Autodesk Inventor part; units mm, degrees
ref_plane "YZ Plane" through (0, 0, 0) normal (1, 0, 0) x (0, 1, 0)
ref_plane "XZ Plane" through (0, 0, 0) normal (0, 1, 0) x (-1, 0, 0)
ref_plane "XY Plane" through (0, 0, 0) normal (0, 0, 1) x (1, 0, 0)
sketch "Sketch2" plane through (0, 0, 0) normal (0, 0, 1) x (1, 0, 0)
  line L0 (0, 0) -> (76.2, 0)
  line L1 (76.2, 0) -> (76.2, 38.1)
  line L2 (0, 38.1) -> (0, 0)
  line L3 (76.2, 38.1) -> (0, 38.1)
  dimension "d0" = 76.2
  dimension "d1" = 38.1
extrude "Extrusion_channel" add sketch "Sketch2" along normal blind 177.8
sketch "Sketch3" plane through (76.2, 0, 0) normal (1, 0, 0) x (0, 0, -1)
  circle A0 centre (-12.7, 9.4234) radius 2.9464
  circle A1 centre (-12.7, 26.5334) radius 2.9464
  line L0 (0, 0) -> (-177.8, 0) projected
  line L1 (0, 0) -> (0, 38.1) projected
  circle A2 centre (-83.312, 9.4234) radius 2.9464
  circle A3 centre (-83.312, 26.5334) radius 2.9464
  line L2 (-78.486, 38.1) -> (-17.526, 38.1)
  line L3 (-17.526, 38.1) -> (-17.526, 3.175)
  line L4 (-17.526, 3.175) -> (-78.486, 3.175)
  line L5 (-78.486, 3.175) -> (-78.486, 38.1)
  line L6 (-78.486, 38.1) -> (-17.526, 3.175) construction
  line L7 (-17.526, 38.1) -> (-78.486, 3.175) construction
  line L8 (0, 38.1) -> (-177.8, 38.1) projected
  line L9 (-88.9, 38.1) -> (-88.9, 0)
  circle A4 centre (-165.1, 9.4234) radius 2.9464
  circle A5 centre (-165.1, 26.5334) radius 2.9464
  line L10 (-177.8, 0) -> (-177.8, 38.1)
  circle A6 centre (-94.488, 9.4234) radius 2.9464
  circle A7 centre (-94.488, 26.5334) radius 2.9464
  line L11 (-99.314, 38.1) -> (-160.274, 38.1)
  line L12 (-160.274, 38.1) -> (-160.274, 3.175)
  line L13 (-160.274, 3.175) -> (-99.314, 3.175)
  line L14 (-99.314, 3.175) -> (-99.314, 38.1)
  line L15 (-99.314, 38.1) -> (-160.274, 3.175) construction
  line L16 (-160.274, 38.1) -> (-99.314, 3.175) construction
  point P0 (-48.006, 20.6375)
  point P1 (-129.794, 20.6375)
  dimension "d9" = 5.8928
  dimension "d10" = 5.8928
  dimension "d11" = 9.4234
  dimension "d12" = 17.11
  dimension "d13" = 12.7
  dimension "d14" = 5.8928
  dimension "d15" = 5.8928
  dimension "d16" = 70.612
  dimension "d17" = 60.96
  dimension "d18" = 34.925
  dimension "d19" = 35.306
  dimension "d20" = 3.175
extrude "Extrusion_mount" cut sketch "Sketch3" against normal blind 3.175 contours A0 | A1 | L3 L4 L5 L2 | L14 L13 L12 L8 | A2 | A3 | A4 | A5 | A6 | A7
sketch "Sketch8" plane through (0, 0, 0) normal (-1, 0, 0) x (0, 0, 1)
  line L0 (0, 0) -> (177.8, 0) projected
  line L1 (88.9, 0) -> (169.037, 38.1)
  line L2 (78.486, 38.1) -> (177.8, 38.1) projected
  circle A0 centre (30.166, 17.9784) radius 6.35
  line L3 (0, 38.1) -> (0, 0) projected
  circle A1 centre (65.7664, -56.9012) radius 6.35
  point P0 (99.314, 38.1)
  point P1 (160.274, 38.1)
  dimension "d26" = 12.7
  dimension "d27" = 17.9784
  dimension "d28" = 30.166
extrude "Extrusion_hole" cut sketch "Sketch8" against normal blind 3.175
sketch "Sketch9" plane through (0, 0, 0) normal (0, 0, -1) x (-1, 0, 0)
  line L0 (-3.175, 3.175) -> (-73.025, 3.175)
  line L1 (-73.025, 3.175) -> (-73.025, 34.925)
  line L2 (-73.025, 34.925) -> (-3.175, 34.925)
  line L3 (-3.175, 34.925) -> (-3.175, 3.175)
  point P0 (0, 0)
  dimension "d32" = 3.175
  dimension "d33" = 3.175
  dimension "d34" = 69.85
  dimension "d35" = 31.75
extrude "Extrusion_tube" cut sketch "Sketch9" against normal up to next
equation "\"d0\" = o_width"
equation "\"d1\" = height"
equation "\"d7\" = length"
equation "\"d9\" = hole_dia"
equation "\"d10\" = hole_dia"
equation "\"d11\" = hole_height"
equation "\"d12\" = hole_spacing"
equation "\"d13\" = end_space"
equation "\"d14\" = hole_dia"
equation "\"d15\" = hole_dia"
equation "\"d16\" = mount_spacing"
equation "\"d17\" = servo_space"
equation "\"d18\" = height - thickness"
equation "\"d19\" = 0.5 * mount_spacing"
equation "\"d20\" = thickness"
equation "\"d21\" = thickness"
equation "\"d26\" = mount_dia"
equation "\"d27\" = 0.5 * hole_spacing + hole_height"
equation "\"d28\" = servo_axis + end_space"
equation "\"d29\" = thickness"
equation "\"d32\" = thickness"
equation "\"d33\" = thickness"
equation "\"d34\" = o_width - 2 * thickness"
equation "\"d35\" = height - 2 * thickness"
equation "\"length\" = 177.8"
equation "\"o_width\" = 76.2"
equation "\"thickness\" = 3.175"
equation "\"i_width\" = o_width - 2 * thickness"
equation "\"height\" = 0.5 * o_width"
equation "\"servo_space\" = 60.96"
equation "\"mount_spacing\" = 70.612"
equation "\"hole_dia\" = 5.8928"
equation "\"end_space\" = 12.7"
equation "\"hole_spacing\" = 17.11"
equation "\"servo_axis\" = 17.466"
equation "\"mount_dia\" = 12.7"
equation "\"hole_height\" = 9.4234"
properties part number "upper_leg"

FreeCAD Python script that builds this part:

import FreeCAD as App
import Part
import Sketcher
from FreeCAD import Vector
Q = App.Units.Quantity


def add_polygon(sketch, points):
    """Adds a closed chain of lines whose ends are joined by coincident constraints."""
    first, n = sketch.GeometryCount, len(points)
    for a, b in zip(points, points[1:] + points[:1]):
        sketch.addGeometry(Part.LineSegment(App.Vector(*a, 0), App.Vector(*b, 0)), False)
    for i in range(n):
        sketch.addConstraint(Sketcher.Constraint("Coincident", first + i, 2, first + (i + 1) % n, 1))

doc = App.newDocument("Part")
body = doc.addObject("PartDesign::Body", "Body")

sketch1 = doc.addObject("Sketcher::SketchObject", "Sketch")
body.addObject(sketch1)
sketch1.AttachmentSupport = (doc.XY_Plane, [""])
sketch1.MapMode = "FlatFace"
add_polygon(sketch1, [(0, 38), (0, 0), (76, 0), (76, 38)])
sketch1.addConstraint(Sketcher.Constraint("Vertical", 0))
sketch1.addConstraint(Sketcher.Constraint("Horizontal", 1))
sketch1.addConstraint(Sketcher.Constraint("Vertical", 2))
sketch1.addConstraint(Sketcher.Constraint("Horizontal", 3))
sketch1.addConstraint(Sketcher.Constraint("Coincident", 0, 2, -1, 1))
sketch1.addConstraint(Sketcher.Constraint("DistanceX", 1, 1, 1, 2, Q("3 in")))
sketch1.addConstraint(Sketcher.Constraint("DistanceY", 0, 2, 0, 1, Q("1.5 in")))
pad1 = doc.addObject("PartDesign::Pad", "Pad")
body.addObject(pad1)
pad1.Profile = sketch1
pad1.Length = Q("7 in")

sketch2 = doc.addObject("Sketcher::SketchObject", "Sketch001")
body.addObject(sketch2)
sketch2.AttachmentSupport = (doc.YZ_Plane, [""])
sketch2.MapMode = "FlatFace"
sketch2.AttachmentOffset = App.Placement(Vector(0, 0, 3 * 25.4), App.Rotation())
sketch2.addGeometry(Part.Circle(Vector(9.4, 12.7, 0), Vector(0, 0, 1), 2.9), False)
sketch2.addGeometry(Part.Circle(Vector(26.5, 12.7, 0), Vector(0, 0, 1), 2.9), False)
add_polygon(sketch2, [(3.2, 17.5), (38.1, 17.5), (38.1, 78.5), (3.2, 78.5)])
add_polygon(sketch2, [(3.2, 99.3), (38.1, 99.3), (38.1, 160.3), (3.2, 160.3)])
sketch2.addGeometry(Part.Circle(Vector(9.4, 83.3, 0), Vector(0, 0, 1), 2.9), False)
sketch2.addGeometry(Part.Circle(Vector(26.5, 83.3, 0), Vector(0, 0, 1), 2.9), False)
sketch2.addGeometry(Part.Circle(Vector(9.4, 165.1, 0), Vector(0, 0, 1), 2.9), False)
sketch2.addGeometry(Part.Circle(Vector(26.5, 165.1, 0), Vector(0, 0, 1), 2.9), False)
sketch2.addGeometry(Part.Circle(Vector(9.4, 94.5, 0), Vector(0, 0, 1), 2.9), False)
sketch2.addGeometry(Part.Circle(Vector(26.5, 94.5, 0), Vector(0, 0, 1), 2.9), False)
sketch2.addConstraint(Sketcher.Constraint("Horizontal", 2))
sketch2.addConstraint(Sketcher.Constraint("Vertical", 3))
sketch2.addConstraint(Sketcher.Constraint("Horizontal", 4))
sketch2.addConstraint(Sketcher.Constraint("Vertical", 5))
sketch2.addConstraint(Sketcher.Constraint("Horizontal", 6))
sketch2.addConstraint(Sketcher.Constraint("Vertical", 7))
sketch2.addConstraint(Sketcher.Constraint("Horizontal", 8))
sketch2.addConstraint(Sketcher.Constraint("Vertical", 9))
sketch2.addConstraint(Sketcher.Constraint("Equal", 0, 1))
sketch2.addConstraint(Sketcher.Constraint("Equal", 1, 10))
sketch2.addConstraint(Sketcher.Constraint("Equal", 10, 11))
sketch2.addConstraint(Sketcher.Constraint("Equal", 11, 12))
sketch2.addConstraint(Sketcher.Constraint("Equal", 12, 13))
sketch2.addConstraint(Sketcher.Constraint("Equal", 13, 14))
sketch2.addConstraint(Sketcher.Constraint("Equal", 14, 15))
sketch2.addConstraint(Sketcher.Constraint("Horizontal", 0, 3, 1, 3))
sketch2.addConstraint(Sketcher.Constraint("Horizontal", 10, 3, 11, 3))
sketch2.addConstraint(Sketcher.Constraint("Horizontal", 12, 3, 13, 3))
sketch2.addConstraint(Sketcher.Constraint("Horizontal", 14, 3, 15, 3))
sketch2.addConstraint(Sketcher.Constraint("Vertical", 0, 3, 10, 3))
sketch2.addConstraint(Sketcher.Constraint("Vertical", 1, 3, 11, 3))
sketch2.addConstraint(Sketcher.Constraint("Vertical", 10, 3, 12, 3))
sketch2.addConstraint(Sketcher.Constraint("Vertical", 11, 3, 13, 3))
sketch2.addConstraint(Sketcher.Constraint("Vertical", 12, 3, 14, 3))
sketch2.addConstraint(Sketcher.Constraint("Vertical", 13, 3, 15, 3))
sketch2.addConstraint(Sketcher.Constraint("Vertical", 3, 2, 6, 2))
sketch2.addConstraint(Sketcher.Constraint("Vertical", 5, 2, 8, 2))
sketch2.addConstraint(Sketcher.Constraint("Equal", 5, 7))
sketch2.addConstraint(Sketcher.Constraint("Diameter", 0, Q("0.232 in")))
sketch2.addConstraint(Sketcher.Constraint("DistanceY", 3, 1, 3, 2, Q("2.4 in")))
sketch2.addConstraint(Sketcher.Constraint("DistanceY", -1, 1, 0, 3, Q("0.5 in")))
sketch2.addConstraint(Sketcher.Constraint("DistanceX", 2, 1, 2, 2, Q("1.375 in")))
sketch2.addConstraint(Sketcher.Constraint("DistanceY", 0, 3, 10, 3, Q("2.78 in")))
sketch2.addConstraint(Sketcher.Constraint("DistanceY", 14, 3, 12, 3, Q("2.78 in")))
sketch2.addConstraint(Sketcher.Constraint("DistanceX", -1, 1, 0, 3, Q("0.371 in")))
sketch2.addConstraint(Sketcher.Constraint("DistanceX", -1, 1, 4, 2, Q("0.125 in")))
sketch2.addConstraint(Sketcher.Constraint("DistanceY", 0, 3, 12, 3, Q("6 in")))
sketch2.addConstraint(Sketcher.Constraint("DistanceY", -1, 1, 2, 2, Q("0.69 in")))
sketch2.addConstraint(Sketcher.Constraint("DistanceY", -1, 1, 6, 2, Q("3.91 in")))
sketch2.addConstraint(Sketcher.Constraint("DistanceX", 0, 3, 1, 3, 17.11))
pocket1 = doc.addObject("PartDesign::Pocket", "Pocket")
body.addObject(pocket1)
pocket1.Profile = sketch2
pocket1.Length = Q("0.125 in")

sketch3 = doc.addObject("Sketcher::SketchObject", "Sketch002")
body.addObject(sketch3)
sketch3.AttachmentSupport = (doc.YZ_Plane, [""])
sketch3.MapMode = "FlatFace"
sketch3.addGeometry(Part.Circle(Vector(18, 30, 0), Vector(0, 0, 1), 6), False)
sketch3.addGeometry(Part.Circle(Vector(-57, 66, 0), Vector(0, 0, 1), 6), False)
sketch3.addConstraint(Sketcher.Constraint("Equal", 0, 1))
sketch3.addConstraint(Sketcher.Constraint("Diameter", 0, Q("0.5 in")))
sketch3.addConstraint(Sketcher.Constraint("DistanceX", -1, 1, 0, 3, Q("0.7078 in")))
sketch3.addConstraint(Sketcher.Constraint("DistanceY", -1, 1, 0, 3, 30.166))
sketch3.addConstraint(Sketcher.Constraint("DistanceX", 1, 3, -1, 1, Q("2.2402 in")))
sketch3.addConstraint(Sketcher.Constraint("DistanceY", 0, 3, 1, 3, Q("1.4016 in")))
pocket2 = doc.addObject("PartDesign::Pocket", "Pocket001")
body.addObject(pocket2)
pocket2.Profile = sketch3
pocket2.Length = Q("0.125 in")
pocket2.Reversed = True

sketch4 = doc.addObject("Sketcher::SketchObject", "Sketch003")
body.addObject(sketch4)
sketch4.AttachmentSupport = (doc.XY_Plane, [""])
sketch4.MapMode = "FlatFace"
add_polygon(sketch4, [(73, 3), (3, 3), (3, 35), (73, 35)])
sketch4.addConstraint(Sketcher.Constraint("Horizontal", 0))
sketch4.addConstraint(Sketcher.Constraint("Vertical", 1))
sketch4.addConstraint(Sketcher.Constraint("Horizontal", 2))
sketch4.addConstraint(Sketcher.Constraint("Vertical", 3))
sketch4.addConstraint(Sketcher.Constraint("DistanceX", 0, 2, 0, 1, Q("2.75 in")))
sketch4.addConstraint(Sketcher.Constraint("DistanceY", 1, 1, 1, 2, Q("1.25 in")))
sketch4.addConstraint(Sketcher.Constraint("DistanceX", -1, 1, 0, 2, Q("0.125 in")))
sketch4.addConstraint(Sketcher.Constraint("DistanceY", -1, 1, 0, 2, Q("0.125 in")))
pocket3 = doc.addObject("PartDesign::Pocket", "Pocket002")
body.addObject(pocket3)
pocket3.Profile = sketch4
pocket3.Type = "UpToFirst"
pocket3.Reversed = True

doc.recompute()
